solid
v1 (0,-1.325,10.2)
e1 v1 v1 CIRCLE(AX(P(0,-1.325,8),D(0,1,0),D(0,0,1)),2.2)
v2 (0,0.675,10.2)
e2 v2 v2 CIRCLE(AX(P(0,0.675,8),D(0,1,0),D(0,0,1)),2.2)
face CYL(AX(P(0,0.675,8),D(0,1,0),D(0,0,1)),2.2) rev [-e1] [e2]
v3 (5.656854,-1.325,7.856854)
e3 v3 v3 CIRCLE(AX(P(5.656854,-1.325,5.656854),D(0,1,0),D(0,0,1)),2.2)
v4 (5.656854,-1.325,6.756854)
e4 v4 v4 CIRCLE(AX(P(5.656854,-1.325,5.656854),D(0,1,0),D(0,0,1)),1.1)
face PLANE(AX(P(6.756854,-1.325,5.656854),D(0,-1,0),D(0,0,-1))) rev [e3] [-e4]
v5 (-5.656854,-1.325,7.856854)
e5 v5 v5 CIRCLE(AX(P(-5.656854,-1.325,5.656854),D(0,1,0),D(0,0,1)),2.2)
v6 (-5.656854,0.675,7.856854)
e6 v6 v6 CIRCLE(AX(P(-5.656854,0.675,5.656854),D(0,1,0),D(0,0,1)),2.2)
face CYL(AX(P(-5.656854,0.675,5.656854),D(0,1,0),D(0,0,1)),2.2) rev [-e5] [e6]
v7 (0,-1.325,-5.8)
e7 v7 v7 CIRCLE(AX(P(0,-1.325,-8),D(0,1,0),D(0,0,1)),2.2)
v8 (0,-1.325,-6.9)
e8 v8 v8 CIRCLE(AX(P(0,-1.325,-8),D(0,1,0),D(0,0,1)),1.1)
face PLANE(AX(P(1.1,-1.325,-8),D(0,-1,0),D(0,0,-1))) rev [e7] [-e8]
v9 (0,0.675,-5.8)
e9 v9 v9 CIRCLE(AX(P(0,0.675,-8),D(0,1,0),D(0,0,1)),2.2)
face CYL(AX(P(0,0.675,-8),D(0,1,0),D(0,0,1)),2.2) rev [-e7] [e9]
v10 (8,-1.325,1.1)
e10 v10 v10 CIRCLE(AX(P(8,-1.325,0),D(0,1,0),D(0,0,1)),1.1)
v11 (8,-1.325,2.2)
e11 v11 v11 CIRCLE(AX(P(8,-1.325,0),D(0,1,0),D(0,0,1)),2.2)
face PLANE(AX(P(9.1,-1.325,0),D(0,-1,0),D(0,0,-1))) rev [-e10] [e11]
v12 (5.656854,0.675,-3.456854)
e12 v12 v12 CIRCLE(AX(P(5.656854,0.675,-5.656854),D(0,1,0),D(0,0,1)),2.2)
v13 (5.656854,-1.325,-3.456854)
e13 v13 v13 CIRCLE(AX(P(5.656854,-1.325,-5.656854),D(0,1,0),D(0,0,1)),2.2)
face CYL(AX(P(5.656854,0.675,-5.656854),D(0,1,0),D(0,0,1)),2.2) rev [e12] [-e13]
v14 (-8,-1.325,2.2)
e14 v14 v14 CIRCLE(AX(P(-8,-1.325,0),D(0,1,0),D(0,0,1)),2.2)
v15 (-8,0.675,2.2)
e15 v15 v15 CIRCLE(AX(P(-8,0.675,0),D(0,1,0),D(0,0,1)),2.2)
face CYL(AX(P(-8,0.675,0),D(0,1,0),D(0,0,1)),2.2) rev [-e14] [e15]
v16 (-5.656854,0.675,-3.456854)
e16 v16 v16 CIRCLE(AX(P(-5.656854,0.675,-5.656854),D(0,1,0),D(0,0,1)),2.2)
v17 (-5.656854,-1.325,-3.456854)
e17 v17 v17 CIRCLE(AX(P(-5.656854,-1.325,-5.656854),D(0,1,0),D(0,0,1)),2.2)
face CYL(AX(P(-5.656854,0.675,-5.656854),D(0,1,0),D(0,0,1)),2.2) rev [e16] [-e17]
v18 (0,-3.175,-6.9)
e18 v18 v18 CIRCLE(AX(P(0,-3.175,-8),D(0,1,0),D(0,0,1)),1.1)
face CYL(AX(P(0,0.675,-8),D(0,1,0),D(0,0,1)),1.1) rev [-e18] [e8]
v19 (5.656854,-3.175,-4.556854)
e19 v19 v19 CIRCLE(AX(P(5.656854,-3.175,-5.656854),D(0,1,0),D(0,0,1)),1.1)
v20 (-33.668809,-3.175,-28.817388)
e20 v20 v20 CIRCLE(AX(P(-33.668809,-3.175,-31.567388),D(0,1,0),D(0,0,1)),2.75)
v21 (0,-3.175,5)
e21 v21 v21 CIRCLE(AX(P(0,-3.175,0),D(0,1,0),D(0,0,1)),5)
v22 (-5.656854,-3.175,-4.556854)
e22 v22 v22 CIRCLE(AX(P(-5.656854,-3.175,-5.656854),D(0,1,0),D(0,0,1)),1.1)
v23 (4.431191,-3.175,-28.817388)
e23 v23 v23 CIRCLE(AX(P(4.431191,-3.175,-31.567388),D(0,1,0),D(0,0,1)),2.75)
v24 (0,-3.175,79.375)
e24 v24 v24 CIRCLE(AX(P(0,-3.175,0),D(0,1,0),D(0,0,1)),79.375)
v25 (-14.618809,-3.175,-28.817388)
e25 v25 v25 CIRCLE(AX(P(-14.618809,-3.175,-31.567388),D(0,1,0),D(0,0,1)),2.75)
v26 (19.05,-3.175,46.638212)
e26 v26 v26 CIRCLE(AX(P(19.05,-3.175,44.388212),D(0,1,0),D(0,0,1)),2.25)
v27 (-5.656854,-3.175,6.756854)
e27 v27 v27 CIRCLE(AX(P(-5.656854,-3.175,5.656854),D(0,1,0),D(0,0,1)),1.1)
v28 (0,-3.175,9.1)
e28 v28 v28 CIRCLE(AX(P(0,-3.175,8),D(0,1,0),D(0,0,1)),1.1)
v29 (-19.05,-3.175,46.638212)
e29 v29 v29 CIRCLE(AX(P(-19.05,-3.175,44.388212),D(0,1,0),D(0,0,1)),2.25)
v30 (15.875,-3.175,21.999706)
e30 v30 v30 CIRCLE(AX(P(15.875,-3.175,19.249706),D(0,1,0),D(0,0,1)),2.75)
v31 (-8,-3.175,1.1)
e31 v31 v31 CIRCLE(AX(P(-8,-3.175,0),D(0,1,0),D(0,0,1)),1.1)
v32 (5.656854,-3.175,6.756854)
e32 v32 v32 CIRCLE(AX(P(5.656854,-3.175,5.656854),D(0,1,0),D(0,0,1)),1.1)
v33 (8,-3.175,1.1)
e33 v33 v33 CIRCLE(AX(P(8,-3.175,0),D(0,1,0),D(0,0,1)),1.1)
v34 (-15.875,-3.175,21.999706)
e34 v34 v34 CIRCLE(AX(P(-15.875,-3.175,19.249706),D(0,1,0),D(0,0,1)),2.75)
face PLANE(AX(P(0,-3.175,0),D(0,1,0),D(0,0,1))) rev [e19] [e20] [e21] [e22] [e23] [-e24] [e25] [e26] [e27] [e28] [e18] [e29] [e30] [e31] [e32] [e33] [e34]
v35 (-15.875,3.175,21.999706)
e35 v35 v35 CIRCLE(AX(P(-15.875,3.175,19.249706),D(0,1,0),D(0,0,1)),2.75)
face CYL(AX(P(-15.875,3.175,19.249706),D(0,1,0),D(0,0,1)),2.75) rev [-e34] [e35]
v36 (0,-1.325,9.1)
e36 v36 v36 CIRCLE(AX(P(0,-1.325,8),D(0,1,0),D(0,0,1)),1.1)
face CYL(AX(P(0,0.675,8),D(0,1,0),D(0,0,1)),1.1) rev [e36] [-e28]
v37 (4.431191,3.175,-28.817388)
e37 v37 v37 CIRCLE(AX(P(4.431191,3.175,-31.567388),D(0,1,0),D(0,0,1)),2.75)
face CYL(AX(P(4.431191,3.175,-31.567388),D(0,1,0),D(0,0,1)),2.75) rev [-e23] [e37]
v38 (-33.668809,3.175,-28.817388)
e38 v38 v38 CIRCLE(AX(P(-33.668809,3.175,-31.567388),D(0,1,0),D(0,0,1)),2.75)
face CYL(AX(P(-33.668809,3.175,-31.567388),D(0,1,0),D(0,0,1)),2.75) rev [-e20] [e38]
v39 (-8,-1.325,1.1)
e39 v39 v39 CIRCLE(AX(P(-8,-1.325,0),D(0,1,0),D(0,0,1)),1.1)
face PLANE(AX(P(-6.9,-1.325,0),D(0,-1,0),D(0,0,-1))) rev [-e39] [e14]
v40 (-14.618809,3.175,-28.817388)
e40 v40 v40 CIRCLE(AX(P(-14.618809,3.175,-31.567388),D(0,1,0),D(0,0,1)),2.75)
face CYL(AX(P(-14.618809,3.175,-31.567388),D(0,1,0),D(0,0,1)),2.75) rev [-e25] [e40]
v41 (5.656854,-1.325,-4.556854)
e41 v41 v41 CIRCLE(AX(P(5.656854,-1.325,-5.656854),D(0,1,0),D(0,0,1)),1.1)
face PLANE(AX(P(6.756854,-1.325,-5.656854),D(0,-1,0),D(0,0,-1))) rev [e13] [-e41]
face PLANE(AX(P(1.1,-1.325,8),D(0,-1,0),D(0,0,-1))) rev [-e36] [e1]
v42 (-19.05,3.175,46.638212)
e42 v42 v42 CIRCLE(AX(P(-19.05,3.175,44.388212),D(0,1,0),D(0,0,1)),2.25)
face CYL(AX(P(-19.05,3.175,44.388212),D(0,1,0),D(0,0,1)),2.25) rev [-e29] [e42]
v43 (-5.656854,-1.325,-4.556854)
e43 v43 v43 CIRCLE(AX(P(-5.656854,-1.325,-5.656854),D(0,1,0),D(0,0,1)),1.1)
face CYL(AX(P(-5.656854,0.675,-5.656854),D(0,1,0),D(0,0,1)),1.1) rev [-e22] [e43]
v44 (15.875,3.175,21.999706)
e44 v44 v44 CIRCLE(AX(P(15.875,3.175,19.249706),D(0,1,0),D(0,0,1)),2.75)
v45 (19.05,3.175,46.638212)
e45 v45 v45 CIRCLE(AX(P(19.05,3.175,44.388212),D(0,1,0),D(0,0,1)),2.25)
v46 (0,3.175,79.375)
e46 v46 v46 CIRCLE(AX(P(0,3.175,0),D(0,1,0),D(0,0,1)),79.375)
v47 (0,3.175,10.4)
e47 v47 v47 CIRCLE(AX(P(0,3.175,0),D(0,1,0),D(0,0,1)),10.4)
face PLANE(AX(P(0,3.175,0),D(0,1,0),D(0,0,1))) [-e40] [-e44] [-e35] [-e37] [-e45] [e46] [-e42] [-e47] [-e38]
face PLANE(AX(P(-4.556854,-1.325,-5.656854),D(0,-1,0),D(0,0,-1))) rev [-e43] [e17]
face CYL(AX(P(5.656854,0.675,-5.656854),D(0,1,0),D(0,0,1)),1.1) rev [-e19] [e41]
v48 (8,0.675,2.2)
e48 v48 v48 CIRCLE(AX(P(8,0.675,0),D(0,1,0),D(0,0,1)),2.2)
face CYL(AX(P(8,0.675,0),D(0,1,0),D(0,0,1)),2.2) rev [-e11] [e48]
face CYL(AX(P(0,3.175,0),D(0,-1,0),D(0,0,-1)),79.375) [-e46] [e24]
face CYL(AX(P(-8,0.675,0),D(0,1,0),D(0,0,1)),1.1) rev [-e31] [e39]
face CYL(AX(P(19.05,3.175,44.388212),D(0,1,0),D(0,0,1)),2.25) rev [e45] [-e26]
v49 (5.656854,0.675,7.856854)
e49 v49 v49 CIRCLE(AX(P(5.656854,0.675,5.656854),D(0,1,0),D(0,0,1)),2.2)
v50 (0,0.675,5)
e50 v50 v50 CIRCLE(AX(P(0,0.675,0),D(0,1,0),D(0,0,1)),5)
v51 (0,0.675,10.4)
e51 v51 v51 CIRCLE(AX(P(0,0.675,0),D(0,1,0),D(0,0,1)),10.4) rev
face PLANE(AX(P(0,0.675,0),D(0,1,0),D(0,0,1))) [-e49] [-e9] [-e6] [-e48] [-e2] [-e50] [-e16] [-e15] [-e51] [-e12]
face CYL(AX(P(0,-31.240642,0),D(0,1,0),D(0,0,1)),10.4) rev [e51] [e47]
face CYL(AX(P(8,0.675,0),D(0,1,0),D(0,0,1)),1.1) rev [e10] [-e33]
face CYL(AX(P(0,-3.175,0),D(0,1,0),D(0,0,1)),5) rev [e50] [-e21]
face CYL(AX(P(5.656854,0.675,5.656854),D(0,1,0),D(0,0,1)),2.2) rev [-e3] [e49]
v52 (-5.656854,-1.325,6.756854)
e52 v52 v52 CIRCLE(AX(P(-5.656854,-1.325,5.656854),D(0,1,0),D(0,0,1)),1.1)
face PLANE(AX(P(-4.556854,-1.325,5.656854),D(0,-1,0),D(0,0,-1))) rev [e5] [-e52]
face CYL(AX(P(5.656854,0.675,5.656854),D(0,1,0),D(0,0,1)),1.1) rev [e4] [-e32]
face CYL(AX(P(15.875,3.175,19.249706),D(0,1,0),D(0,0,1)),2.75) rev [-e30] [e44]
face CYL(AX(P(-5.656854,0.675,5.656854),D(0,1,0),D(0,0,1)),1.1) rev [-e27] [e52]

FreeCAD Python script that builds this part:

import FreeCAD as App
import Part
import Sketcher
from FreeCAD import Vector

doc = App.newDocument("Part")
body = doc.addObject("PartDesign::Body", "Body")

# Sketch on XZ plane
sketch1 = body.newObject("Sketcher::SketchObject", "Sketch")
sketch1.AttachmentSupport = (doc.getObject("XZ_Plane"), [""])
sketch1.MapMode = "FlatFace"
sketch1.addGeometry(Part.Circle(Vector(0, 0, 0), Vector(0, 0, 1), 79), False)
sketch1.addConstraint(Sketcher.Constraint("Coincident", 0, 3, -1, 1))
sketch1.addConstraint(Sketcher.Constraint("Diameter", 0, 158.75))
pad1 = body.newObject("PartDesign::Pad", "Pad")
pad1.Profile = sketch1
pad1.Length = 6.35
pad1.Midplane = True

# Sketch on XZ plane
sketch2 = body.newObject("Sketcher::SketchObject", "Sketch001")
sketch2.AttachmentSupport = (doc.getObject("XZ_Plane"), [""])
sketch2.MapMode = "FlatFace"
sketch2.AttachmentOffset = App.Placement(Vector(0, 0, -3.175), App.Rotation())
sketch2.addGeometry(Part.Circle(Vector(0, 0, 0), Vector(0, 0, 1), 10), False)
sketch2.addConstraint(Sketcher.Constraint("Coincident", 0, 3, -1, 1))
sketch2.addConstraint(Sketcher.Constraint("Diameter", 0, 20.8))
pocket1 = body.newObject("PartDesign::Pocket", "Pocket")
pocket1.Profile = sketch2
pocket1.Length = 2.5
pocket1.Reversed = True

# Sketch on XZ plane
sketch3 = body.newObject("Sketcher::SketchObject", "Sketch002")
sketch3.AttachmentSupport = (doc.getObject("XZ_Plane"), [""])
sketch3.MapMode = "FlatFace"
sketch3.AttachmentOffset = App.Placement(Vector(0, 0, -3.175), App.Rotation())
sketch3.addGeometry(Part.Circle(Vector(0, 0, 0), Vector(0, 0, 1), 5), False)
sketch3.addConstraint(Sketcher.Constraint("Coincident", 0, 3, -1, 1))
sketch3.addConstraint(Sketcher.Constraint("Diameter", 0, 10.0))
pocket2 = body.newObject("PartDesign::Pocket", "Pocket001")
pocket2.Profile = sketch3
pocket2.Type = "ThroughAll"
pocket2.Reversed = True

# Sketch on XZ plane
sketch4 = body.newObject("Sketcher::SketchObject", "Sketch003")
sketch4.AttachmentSupport = (doc.getObject("XZ_Plane"), [""])
sketch4.MapMode = "FlatFace"
sketch4.AttachmentOffset = App.Placement(Vector(0, 0, -0.675), App.Rotation())
sketch4.addGeometry(Part.Circle(Vector(-5.7, -5.7, 0), Vector(0, 0, 1), 1.1), False)
sketch4.addGeometry(Part.Circle(Vector(0, -8, 0), Vector(0, 0, 1), 1.1), False)
sketch4.addGeometry(Part.Circle(Vector(5.7, -5.7, 0), Vector(0, 0, 1), 1.1), False)
sketch4.addGeometry(Part.Circle(Vector(8, 0, 0), Vector(0, 0, 1), 1.1), False)
sketch4.addGeometry(Part.Circle(Vector(5.7, 5.7, 0), Vector(0, 0, 1), 1.1), False)
sketch4.addGeometry(Part.Circle(Vector(0, 8, 0), Vector(0, 0, 1), 1.1), False)
sketch4.addGeometry(Part.Circle(Vector(-5.7, 5.7, 0), Vector(0, 0, 1), 1.1), False)
sketch4.addGeometry(Part.Circle(Vector(-8, 0, 0), Vector(0, 0, 1), 1.1), False)
sketch4.addConstraint(Sketcher.Constraint("Equal", 0, 1))
sketch4.addConstraint(Sketcher.Constraint("Equal", 1, 2))
sketch4.addConstraint(Sketcher.Constraint("Equal", 2, 3))
sketch4.addConstraint(Sketcher.Constraint("Equal", 3, 4))
sketch4.addConstraint(Sketcher.Constraint("Equal", 4, 5))
sketch4.addConstraint(Sketcher.Constraint("Equal", 5, 6))
sketch4.addConstraint(Sketcher.Constraint("Equal", 6, 7))
sketch4.addConstraint(Sketcher.Constraint("Symmetric", 0, 3, 4, 3, -1, 1))
sketch4.addConstraint(Sketcher.Constraint("Symmetric", 1, 3, 5, 3, -1, 1))
sketch4.addConstraint(Sketcher.Constraint("Symmetric", 2, 3, 6, 3, -1, 1))
sketch4.addConstraint(Sketcher.Constraint("Symmetric", 3, 3, 7, 3, -1, 1))
sketch4.addConstraint(Sketcher.Constraint("Symmetric", 0, 3, 2, 3, -2))
sketch4.addConstraint(Sketcher.Constraint("PointOnObject", 1, 3, -2))
sketch4.addConstraint(Sketcher.Constraint("PointOnObject", 3, 3, -1))
sketch4.addConstraint(Sketcher.Constraint("Diameter", 0, 2.2))
sketch4.addConstraint(Sketcher.Constraint("DistanceY", 1, 3, -1, 1, 8.0))
sketch4.addConstraint(Sketcher.Constraint("DistanceX", -1, 1, 3, 3, 8.0))
sketch4.addConstraint(Sketcher.Constraint("DistanceX", 0, 3, 2, 3, 11.313709))
sketch4.addConstraint(Sketcher.Constraint("DistanceY", 2, 3, 4, 3, 11.313709))
doc.recompute()
hole = body.newObject("PartDesign::Hole", "Hole")
hole.Profile = sketch4
hole.ThreadType = "None"
hole.Diameter = 2.2
hole.DepthType = "Dimension"
hole.Depth = 6
hole.DrillPoint = "Angled"
hole.DrillPointAngle = 118
hole.HoleCutType = "Counterbore"
hole.HoleCutDiameter = 4.4
hole.HoleCutDepth = 2
hole.Reversed = True

# Sketch on XZ plane
sketch5 = body.newObject("Sketcher::SketchObject", "Sketch004")
sketch5.AttachmentSupport = (doc.getObject("XZ_Plane"), [""])
sketch5.MapMode = "FlatFace"
sketch5.AttachmentOffset = App.Placement(Vector(0, 0, -3.175), App.Rotation())
sketch5.addGeometry(Part.Circle(Vector(19.1, 44.4, 0), Vector(0, 0, 1), 2.2), False)
sketch5.addGeometry(Part.Circle(Vector(-19.1, 44.4, 0), Vector(0, 0, 1), 2.2), False)
sketch5.addConstraint(Sketcher.Constraint("Equal", 0, 1))
sketch5.addConstraint(Sketcher.Constraint("Symmetric", 0, 3, 1, 3, -2))
sketch5.addConstraint(Sketcher.Constraint("Diameter", 0, 4.5))
sketch5.addConstraint(Sketcher.Constraint("DistanceX", 1, 3, 0, 3, 38.1))
sketch5.addConstraint(Sketcher.Constraint("DistanceY", -1, 1, 0, 3, 44.388212))
doc.recompute()
hole2 = body.newObject("PartDesign::Hole", "Hole001")
hole2.Profile = sketch5
hole2.ThreadType = "None"
hole2.Diameter = 4.5
hole2.DepthType = "ThroughAll"
hole2.Reversed = True

# Sketch on XZ plane
sketch6 = body.newObject("Sketcher::SketchObject", "Sketch005")
sketch6.AttachmentSupport = (doc.getObject("XZ_Plane"), [""])
sketch6.MapMode = "FlatFace"
sketch6.AttachmentOffset = App.Placement(Vector(0, 0, -3.175), App.Rotation())
sketch6.addGeometry(Part.Circle(Vector(-33.7, -31.6, 0), Vector(0, 0, 1), 2.8), False)
sketch6.addGeometry(Part.Circle(Vector(-14.6, -31.6, 0), Vector(0, 0, 1), 2.8), False)
sketch6.addGeometry(Part.Circle(Vector(4.4, -31.6, 0), Vector(0, 0, 1), 2.8), False)
sketch6.addGeometry(Part.Circle(Vector(-15.9, 19.2, 0), Vector(0, 0, 1), 2.8), False)
sketch6.addGeometry(Part.Circle(Vector(15.9, 19.2, 0), Vector(0, 0, 1), 2.8), False)
sketch6.addConstraint(Sketcher.Constraint("Equal", 0, 1))
sketch6.addConstraint(Sketcher.Constraint("Equal", 1, 2))
sketch6.addConstraint(Sketcher.Constraint("Equal", 2, 3))
sketch6.addConstraint(Sketcher.Constraint("Equal", 3, 4))
sketch6.addConstraint(Sketcher.Constraint("Symmetric", 3, 3, 4, 3, -2))
sketch6.addConstraint(Sketcher.Constraint("Horizontal", 0, 3, 1, 3))
sketch6.addConstraint(Sketcher.Constraint("Horizontal", 1, 3, 2, 3))
sketch6.addConstraint(Sketcher.Constraint("Diameter", 0, 5.5))
sketch6.addConstraint(Sketcher.Constraint("DistanceX", 0, 3, 2, 3, 38.1))
sketch6.addConstraint(Sketcher.Constraint("DistanceX", 0, 3, 1, 3, 19.05))
sketch6.addConstraint(Sketcher.Constraint("DistanceX", 3, 3, 4, 3, 31.75))
sketch6.addConstraint(Sketcher.Constraint("DistanceX", 0, 3, -1, 1, 33.668809))
sketch6.addConstraint(Sketcher.Constraint("DistanceY", 0, 3, -1, 1, 31.567388))
sketch6.addConstraint(Sketcher.Constraint("DistanceY", -1, 1, 3, 3, 19.249706))
doc.recompute()
hole3 = body.newObject("PartDesign::Hole", "Hole002")
hole3.Profile = sketch6
hole3.ThreadType = "None"
hole3.Diameter = 5.5
hole3.DepthType = "ThroughAll"
hole3.Reversed = True

doc.recompute()
